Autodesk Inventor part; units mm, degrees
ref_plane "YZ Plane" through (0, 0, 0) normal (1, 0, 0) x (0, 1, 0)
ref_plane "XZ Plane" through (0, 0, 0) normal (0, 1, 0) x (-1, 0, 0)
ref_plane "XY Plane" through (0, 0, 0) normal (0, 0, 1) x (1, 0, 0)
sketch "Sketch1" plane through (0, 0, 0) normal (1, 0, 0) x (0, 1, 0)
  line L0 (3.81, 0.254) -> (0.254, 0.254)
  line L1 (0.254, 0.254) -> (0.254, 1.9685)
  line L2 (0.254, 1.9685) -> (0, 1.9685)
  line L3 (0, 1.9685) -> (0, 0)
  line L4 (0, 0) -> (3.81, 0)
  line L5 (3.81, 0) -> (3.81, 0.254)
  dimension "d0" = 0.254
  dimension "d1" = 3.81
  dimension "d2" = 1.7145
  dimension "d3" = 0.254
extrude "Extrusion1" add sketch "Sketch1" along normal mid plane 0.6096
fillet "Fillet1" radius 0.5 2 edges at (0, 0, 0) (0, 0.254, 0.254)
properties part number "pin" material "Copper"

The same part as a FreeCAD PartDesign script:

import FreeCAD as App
import Part
import Sketcher

V = App.Vector
Q = App.Units.Quantity


def edges_at(feature, points):
    """Names of the edges that pass closest to the given points."""
    edges = feature.Shape.Edges
    near = lambda p: min(range(len(edges)), key=lambda i: edges[i].distToShape(Part.Vertex(*p))[0])
    return sorted({f"Edge{near(p) + 1}" for p in points})

doc = App.newDocument("Part")
body = doc.addObject("PartDesign::Body", "Body")

sketch1 = body.newObject("Sketcher::SketchObject", "Sketch")
sketch1.AttachmentSupport = (doc.getObject("YZ_Plane"), [""])
sketch1.MapMode = "FlatFace"
sketch1.addGeometry([
    Part.LineSegment(V(3.81, 0, 0), V(3.81, 0.25, 0)),
    Part.LineSegment(V(3.81, 0.25, 0), V(0.25, 0.25, 0)),
    Part.LineSegment(V(0.25, 0.25, 0), V(0.25, 1.97, 0)),
    Part.LineSegment(V(0.25, 1.97, 0), V(0, 1.97, 0)),
    Part.LineSegment(V(0, 1.97, 0), V(0, 0, 0)),
    Part.LineSegment(V(0, 0, 0), V(3.81, 0, 0)),
], False)
sketch1.addConstraint([
    Sketcher.Constraint("Coincident", 0, 2, 1, 1),
    Sketcher.Constraint("Coincident", 1, 2, 2, 1),
    Sketcher.Constraint("Coincident", 2, 2, 3, 1),
    Sketcher.Constraint("Coincident", 3, 2, 4, 1),
    Sketcher.Constraint("Coincident", 4, 2, 5, 1),
    Sketcher.Constraint("Coincident", 5, 2, 0, 1),
    Sketcher.Constraint("Vertical", 0),
    Sketcher.Constraint("Horizontal", 1),
    Sketcher.Constraint("Vertical", 2),
    Sketcher.Constraint("Horizontal", 3),
    Sketcher.Constraint("Vertical", 4),
    Sketcher.Constraint("Horizontal", 5),
    Sketcher.Constraint("Coincident", 4, 2, -1, 1),
    Sketcher.Constraint("Equal", 3, 0),
    Sketcher.Constraint("DistanceX", 3, 2, 3, 1, Q("0.01 in")),
    Sketcher.Constraint("DistanceX", 5, 1, 5, 2, Q("0.15 in")),
    Sketcher.Constraint("DistanceY", 2, 1, 2, 2, Q("0.0675 in")),
])
pad1 = body.newObject("PartDesign::Pad", "Pad")
pad1.Profile = sketch1
pad1.Length = Q("0.024 in")
pad1.Midplane = True
doc.recompute()

fillet = body.newObject("PartDesign::Fillet", "Fillet")
fillet.Base = (pad1, edges_at(pad1, [(0, 0, 0), (0, 0.254, 0.254)]))
fillet.Radius = 0.5

doc.recompute()
